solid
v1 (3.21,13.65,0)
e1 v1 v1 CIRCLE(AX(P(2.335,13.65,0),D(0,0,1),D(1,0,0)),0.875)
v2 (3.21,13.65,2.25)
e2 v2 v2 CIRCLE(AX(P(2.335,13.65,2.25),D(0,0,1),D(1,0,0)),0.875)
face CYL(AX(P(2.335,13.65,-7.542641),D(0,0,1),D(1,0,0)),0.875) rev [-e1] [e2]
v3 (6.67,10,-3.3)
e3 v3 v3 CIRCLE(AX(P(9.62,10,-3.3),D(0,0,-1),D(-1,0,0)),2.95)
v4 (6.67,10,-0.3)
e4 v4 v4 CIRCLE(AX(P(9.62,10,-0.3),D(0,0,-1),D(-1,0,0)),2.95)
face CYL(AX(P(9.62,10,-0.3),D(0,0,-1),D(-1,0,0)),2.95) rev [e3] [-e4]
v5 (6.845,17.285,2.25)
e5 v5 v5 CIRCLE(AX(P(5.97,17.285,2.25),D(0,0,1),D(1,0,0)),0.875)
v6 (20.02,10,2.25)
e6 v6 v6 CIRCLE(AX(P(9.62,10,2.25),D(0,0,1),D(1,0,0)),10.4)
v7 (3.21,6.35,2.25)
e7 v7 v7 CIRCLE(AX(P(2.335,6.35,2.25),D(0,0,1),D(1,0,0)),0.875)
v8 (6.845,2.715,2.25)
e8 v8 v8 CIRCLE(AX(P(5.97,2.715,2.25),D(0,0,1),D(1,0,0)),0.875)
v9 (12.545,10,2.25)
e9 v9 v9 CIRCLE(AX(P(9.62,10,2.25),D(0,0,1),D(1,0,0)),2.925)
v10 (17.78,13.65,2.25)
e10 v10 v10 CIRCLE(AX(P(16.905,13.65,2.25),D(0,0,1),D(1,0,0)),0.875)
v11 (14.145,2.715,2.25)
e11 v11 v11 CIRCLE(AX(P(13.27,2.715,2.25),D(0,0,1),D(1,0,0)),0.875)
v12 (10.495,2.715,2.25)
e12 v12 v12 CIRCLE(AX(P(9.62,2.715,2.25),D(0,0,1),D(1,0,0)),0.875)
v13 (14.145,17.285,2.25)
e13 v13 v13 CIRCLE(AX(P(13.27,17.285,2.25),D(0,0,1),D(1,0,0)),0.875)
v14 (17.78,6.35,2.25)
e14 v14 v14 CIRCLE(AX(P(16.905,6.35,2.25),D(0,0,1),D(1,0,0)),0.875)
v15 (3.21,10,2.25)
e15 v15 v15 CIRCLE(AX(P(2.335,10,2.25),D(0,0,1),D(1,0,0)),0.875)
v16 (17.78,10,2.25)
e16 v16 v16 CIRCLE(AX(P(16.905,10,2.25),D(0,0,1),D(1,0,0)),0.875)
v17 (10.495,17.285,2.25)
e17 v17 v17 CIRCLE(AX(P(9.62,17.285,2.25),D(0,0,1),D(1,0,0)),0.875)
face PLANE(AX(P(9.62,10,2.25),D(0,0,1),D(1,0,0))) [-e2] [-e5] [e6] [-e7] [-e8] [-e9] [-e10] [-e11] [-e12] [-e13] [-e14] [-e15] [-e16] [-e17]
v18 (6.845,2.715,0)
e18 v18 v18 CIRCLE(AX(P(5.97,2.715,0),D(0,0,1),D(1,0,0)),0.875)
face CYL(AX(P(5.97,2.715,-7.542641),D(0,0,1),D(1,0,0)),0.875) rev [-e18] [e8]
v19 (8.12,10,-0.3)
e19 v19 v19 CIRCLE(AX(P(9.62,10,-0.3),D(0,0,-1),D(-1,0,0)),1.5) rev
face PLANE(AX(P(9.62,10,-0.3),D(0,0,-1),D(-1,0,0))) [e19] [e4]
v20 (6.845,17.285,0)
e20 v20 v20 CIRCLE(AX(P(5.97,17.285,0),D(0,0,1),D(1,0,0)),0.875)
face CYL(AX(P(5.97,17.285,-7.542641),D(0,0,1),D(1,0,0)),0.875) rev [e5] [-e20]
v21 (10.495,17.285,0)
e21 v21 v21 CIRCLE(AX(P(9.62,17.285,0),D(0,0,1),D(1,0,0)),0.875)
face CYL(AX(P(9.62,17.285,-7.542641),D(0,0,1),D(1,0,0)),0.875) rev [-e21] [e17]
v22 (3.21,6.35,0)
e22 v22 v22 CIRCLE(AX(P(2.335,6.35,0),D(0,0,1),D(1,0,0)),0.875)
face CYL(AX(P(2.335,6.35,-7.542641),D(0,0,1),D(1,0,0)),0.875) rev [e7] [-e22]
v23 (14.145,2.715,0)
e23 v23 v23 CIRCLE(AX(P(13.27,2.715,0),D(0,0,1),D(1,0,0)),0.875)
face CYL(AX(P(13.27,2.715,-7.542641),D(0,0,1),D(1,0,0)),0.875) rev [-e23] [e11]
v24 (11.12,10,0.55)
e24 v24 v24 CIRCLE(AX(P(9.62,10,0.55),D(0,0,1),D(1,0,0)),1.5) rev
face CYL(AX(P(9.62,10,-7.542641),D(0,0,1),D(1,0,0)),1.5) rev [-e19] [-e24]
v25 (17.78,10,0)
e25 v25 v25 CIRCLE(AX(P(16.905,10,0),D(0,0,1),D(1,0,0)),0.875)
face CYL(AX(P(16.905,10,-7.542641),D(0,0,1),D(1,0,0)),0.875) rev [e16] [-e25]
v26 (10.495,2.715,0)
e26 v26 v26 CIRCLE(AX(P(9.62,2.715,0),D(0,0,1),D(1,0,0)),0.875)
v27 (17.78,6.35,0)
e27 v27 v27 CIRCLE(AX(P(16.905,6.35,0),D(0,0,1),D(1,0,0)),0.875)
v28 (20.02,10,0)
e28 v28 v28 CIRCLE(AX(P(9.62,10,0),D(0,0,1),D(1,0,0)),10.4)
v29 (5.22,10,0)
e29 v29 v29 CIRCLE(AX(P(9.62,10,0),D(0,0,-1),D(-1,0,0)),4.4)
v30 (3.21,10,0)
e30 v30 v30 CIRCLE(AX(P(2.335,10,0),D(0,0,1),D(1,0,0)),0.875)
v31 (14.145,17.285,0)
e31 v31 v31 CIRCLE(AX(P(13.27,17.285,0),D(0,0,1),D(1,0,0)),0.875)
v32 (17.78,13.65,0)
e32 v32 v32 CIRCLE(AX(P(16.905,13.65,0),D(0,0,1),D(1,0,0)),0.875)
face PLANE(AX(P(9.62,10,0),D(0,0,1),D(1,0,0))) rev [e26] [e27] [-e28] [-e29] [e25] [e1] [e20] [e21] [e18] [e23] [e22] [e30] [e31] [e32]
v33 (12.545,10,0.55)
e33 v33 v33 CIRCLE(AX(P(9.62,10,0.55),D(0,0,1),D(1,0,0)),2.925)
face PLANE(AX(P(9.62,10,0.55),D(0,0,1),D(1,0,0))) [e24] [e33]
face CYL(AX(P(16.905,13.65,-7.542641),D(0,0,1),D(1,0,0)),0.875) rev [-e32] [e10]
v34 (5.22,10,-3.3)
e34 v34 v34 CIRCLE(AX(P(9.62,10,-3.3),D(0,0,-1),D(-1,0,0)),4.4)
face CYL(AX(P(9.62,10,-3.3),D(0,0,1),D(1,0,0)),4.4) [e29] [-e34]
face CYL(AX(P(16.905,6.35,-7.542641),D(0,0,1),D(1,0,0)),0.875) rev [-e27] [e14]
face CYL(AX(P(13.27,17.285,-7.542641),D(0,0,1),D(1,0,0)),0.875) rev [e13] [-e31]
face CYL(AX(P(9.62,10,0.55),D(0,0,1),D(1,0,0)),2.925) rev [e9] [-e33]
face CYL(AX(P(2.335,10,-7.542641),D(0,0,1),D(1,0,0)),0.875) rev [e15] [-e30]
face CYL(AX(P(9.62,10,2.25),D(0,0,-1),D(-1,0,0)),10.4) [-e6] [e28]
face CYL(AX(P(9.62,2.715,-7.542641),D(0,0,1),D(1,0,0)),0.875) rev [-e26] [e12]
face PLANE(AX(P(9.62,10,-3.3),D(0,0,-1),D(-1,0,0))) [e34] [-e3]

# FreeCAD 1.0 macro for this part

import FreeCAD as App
import Part
import Sketcher

doc = App.newDocument("Part")
params = doc.addObject("Spreadsheet::Sheet", "Params")
for row, (alias, value) in enumerate([
    ("sketch1_diameter", "20.8 mm"),
    ("pad1_length", "2.25 mm"),
    ("sketch2_diameter", "8.8 mm"),
    ("pad2_length", "3.3 mm"),
    ("sketch3_diameter", "3 mm"),
    ("sketch3_diameter2", "1.75 mm"),
    ("pocket1_length", "5.55 mm"),
    ("sketch4_diameter", "5.85 mm"),
    ("pocket2_length", "1.7 mm"),
    ("sketch5_diameter", "5.9 mm"),
    ("pocket3_length", "3 mm"),
], start=1):
    params.set(f"A{row}", alias)
    params.set(f"B{row}", "=" + value)
    params.setAlias(f"B{row}", alias)

body = doc.addObject("PartDesign::Body", "Body")

# Sketch on XY plane
sketch1 = body.newObject("Sketcher::SketchObject", "Sketch")
sketch1.AttachmentSupport = (doc.getObject("XY_Plane"), [""])
sketch1.MapMode = "FlatFace"
sketch1.addGeometry(Part.Circle(App.Vector(10, 10, 0), App.Vector(0, 0, 1), 10), False)
sketch1.addConstraint(Sketcher.Constraint("Diameter", 0, 20.8))
sketch1.addConstraint(Sketcher.Constraint("DistanceY", -1, 1, 0, 3, 10.0))
sketch1.addConstraint(Sketcher.Constraint("DistanceX", -1, 1, 0, 3, 9.62))
sketch1.setExpression("Constraints[0]", "Params.sketch1_diameter")
pad1 = body.newObject("PartDesign::Pad", "Pad")
pad1.Profile = sketch1
pad1.setExpression("Length", "Params.pad1_length")

# Sketch on XY plane
sketch2 = body.newObject("Sketcher::SketchObject", "Sketch001")
sketch2.AttachmentSupport = (doc.getObject("XY_Plane"), [""])
sketch2.MapMode = "FlatFace"
sketch2.addGeometry(Part.Circle(App.Vector(9.6, 10, 0), App.Vector(0, 0, 1), 4.4), False)
sketch2.addConstraint(Sketcher.Constraint("Diameter", 0, 8.8))
sketch2.addConstraint(Sketcher.Constraint("DistanceY", -1, 1, 0, 3, 10.0))
sketch2.addConstraint(Sketcher.Constraint("DistanceX", -1, 1, 0, 3, 9.62))
sketch2.setExpression("Constraints[0]", "Params.sketch2_diameter")
pad2 = body.newObject("PartDesign::Pad", "Pad001")
pad2.Profile = sketch2
pad2.setExpression("Length", "Params.pad2_length")
pad2.Reversed = True

# Sketch on XY plane
sketch3 = body.newObject("Sketcher::SketchObject", "Sketch002")
sketch3.AttachmentSupport = (doc.getObject("XY_Plane"), [""])
sketch3.MapMode = "FlatFace"
sketch3.AttachmentOffset = App.Placement(App.Vector(0, 0, 2.25), App.Rotation())
sketch3.addGeometry(Part.Circle(App.Vector(9.6, 10, 0), App.Vector(0, 0, 1), 1.5), False)
sketch3.addGeometry(Part.Circle(App.Vector(9.6, 2.7, 0), App.Vector(0, 0, 1), 0.9), False)
sketch3.addGeometry(Part.Circle(App.Vector(6, 2.7, 0), App.Vector(0, 0, 1), 0.9), False)
sketch3.addGeometry(Part.Circle(App.Vector(13.3, 2.7, 0), App.Vector(0, 0, 1), 0.9), False)
sketch3.addGeometry(Part.Circle(App.Vector(2.3, 6.3, 0), App.Vector(0, 0, 1), 0.9), False)
sketch3.addGeometry(Part.Circle(App.Vector(2.3, 10, 0), App.Vector(0, 0, 1), 0.9), False)
sketch3.addGeometry(Part.Circle(App.Vector(2.3, 13.7, 0), App.Vector(0, 0, 1), 0.9), False)
sketch3.addGeometry(Part.Circle(App.Vector(6, 17.3, 0), App.Vector(0, 0, 1), 0.9), False)
sketch3.addGeometry(Part.Circle(App.Vector(9.6, 17.3, 0), App.Vector(0, 0, 1), 0.9), False)
sketch3.addGeometry(Part.Circle(App.Vector(13.3, 17.3, 0), App.Vector(0, 0, 1), 0.9), False)
sketch3.addGeometry(Part.Circle(App.Vector(16.9, 13.7, 0), App.Vector(0, 0, 1), 0.9), False)
sketch3.addGeometry(Part.Circle(App.Vector(16.9, 10, 0), App.Vector(0, 0, 1), 0.9), False)
sketch3.addGeometry(Part.Circle(App.Vector(16.9, 6.3, 0), App.Vector(0, 0, 1), 0.9), False)
sketch3.addConstraint(Sketcher.Constraint("Equal", 1, 2))
sketch3.addConstraint(Sketcher.Constraint("Equal", 2, 3))
sketch3.addConstraint(Sketcher.Constraint("Equal", 3, 4))
sketch3.addConstraint(Sketcher.Constraint("Equal", 4, 5))
sketch3.addConstraint(Sketcher.Constraint("Equal", 5, 6))
sketch3.addConstraint(Sketcher.Constraint("Equal", 6, 7))
sketch3.addConstraint(Sketcher.Constraint("Equal", 7, 8))
sketch3.addConstraint(Sketcher.Constraint("Equal", 8, 9))
sketch3.addConstraint(Sketcher.Constraint("Equal", 9, 10))
sketch3.addConstraint(Sketcher.Constraint("Equal", 10, 11))
sketch3.addConstraint(Sketcher.Constraint("Equal", 11, 12))
sketch3.addConstraint(Sketcher.Constraint("Horizontal", 1, 3, 2, 3))
sketch3.addConstraint(Sketcher.Constraint("Horizontal", 2, 3, 3, 3))
sketch3.addConstraint(Sketcher.Constraint("Horizontal", 0, 3, 5, 3))
sketch3.addConstraint(Sketcher.Constraint("Horizontal", 7, 3, 8, 3))
sketch3.addConstraint(Sketcher.Constraint("Horizontal", 8, 3, 9, 3))
sketch3.addConstraint(Sketcher.Constraint("Horizontal", 6, 3, 10, 3))
sketch3.addConstraint(Sketcher.Constraint("Horizontal", 5, 3, 11, 3))
sketch3.addConstraint(Sketcher.Constraint("Horizontal", 4, 3, 12, 3))
sketch3.addConstraint(Sketcher.Constraint("Vertical", 0, 3, 1, 3))
sketch3.addConstraint(Sketcher.Constraint("Vertical", 4, 3, 5, 3))
sketch3.addConstraint(Sketcher.Constraint("Vertical", 5, 3, 6, 3))
sketch3.addConstraint(Sketcher.Constraint("Vertical", 2, 3, 7, 3))
sketch3.addConstraint(Sketcher.Constraint("Vertical", 1, 3, 8, 3))
sketch3.addConstraint(Sketcher.Constraint("Vertical", 3, 3, 9, 3))
sketch3.addConstraint(Sketcher.Constraint("Vertical", 10, 3, 11, 3))
sketch3.addConstraint(Sketcher.Constraint("Vertical", 11, 3, 12, 3))
sketch3.addConstraint(Sketcher.Constraint("Diameter", 0, 3.0))
sketch3.addConstraint(Sketcher.Constraint("Diameter", 1, 1.75))
sketch3.addConstraint(Sketcher.Constraint("DistanceY", -1, 1, 0, 3, 10.0))
sketch3.addConstraint(Sketcher.Constraint("DistanceX", 2, 3, 3, 3, 7.3))
sketch3.addConstraint(Sketcher.Constraint("DistanceY", 4, 3, 6, 3, 7.3))
sketch3.addConstraint(Sketcher.Constraint("DistanceX", -1, 1, 0, 3, 9.62))
sketch3.addConstraint(Sketcher.Constraint("DistanceX", -1, 1, 2, 3, 5.97))
sketch3.addConstraint(Sketcher.Constraint("DistanceY", -1, 1, 4, 3, 6.35))
sketch3.addConstraint(Sketcher.Constraint("DistanceY", 2, 3, 7, 3, 14.57))
sketch3.addConstraint(Sketcher.Constraint("DistanceY", -1, 1, 1, 3, 2.715))
sketch3.addConstraint(Sketcher.Constraint("DistanceX", -1, 1, 4, 3, 2.335))
sketch3.addConstraint(Sketcher.Constraint("DistanceX", -1, 1, 10, 3, 16.905))
sketch3.setExpression("Constraints[27]", "Params.sketch3_diameter")
sketch3.setExpression("Constraints[28]", "Params.sketch3_diameter2")
pocket1 = body.newObject("PartDesign::Pocket", "Pocket")
pocket1.Profile = sketch3
pocket1.setExpression("Length", "Params.pocket1_length")

# Sketch on XY plane
sketch4 = body.newObject("Sketcher::SketchObject", "Sketch003")
sketch4.AttachmentSupport = (doc.getObject("XY_Plane"), [""])
sketch4.MapMode = "FlatFace"
sketch4.AttachmentOffset = App.Placement(App.Vector(0, 0, 2.25), App.Rotation())
sketch4.addGeometry(Part.Circle(App.Vector(9.6, 10, 0), App.Vector(0, 0, 1), 2.9), False)
sketch4.addConstraint(Sketcher.Constraint("Diameter", 0, 5.85))
sketch4.addConstraint(Sketcher.Constraint("DistanceY", -1, 1, 0, 3, 10.0))
sketch4.addConstraint(Sketcher.Constraint("DistanceX", -1, 1, 0, 3, 9.62))
sketch4.setExpression("Constraints[0]", "Params.sketch4_diameter")
pocket2 = body.newObject("PartDesign::Pocket", "Pocket001")
pocket2.Profile = sketch4
pocket2.setExpression("Length", "Params.pocket2_length")

# Sketch on XY plane
sketch5 = body.newObject("Sketcher::SketchObject", "Sketch004")
sketch5.AttachmentSupport = (doc.getObject("XY_Plane"), [""])
sketch5.MapMode = "FlatFace"
sketch5.AttachmentOffset = App.Placement(App.Vector(0, 0, -3.3), App.Rotation())
sketch5.addGeometry(Part.Circle(App.Vector(9.6, 10, 0), App.Vector(0, 0, 1), 3), False)
sketch5.addConstraint(Sketcher.Constraint("Diameter", 0, 5.9))
sketch5.addConstraint(Sketcher.Constraint("DistanceY", -1, 1, 0, 3, 10.0))
sketch5.addConstraint(Sketcher.Constraint("DistanceX", -1, 1, 0, 3, 9.62))
sketch5.setExpression("Constraints[0]", "Params.sketch5_diameter")
pocket3 = body.newObject("PartDesign::Pocket", "Pocket002")
pocket3.Profile = sketch5
pocket3.setExpression("Length", "Params.pocket3_length")
pocket3.Reversed = True

doc.recompute()
